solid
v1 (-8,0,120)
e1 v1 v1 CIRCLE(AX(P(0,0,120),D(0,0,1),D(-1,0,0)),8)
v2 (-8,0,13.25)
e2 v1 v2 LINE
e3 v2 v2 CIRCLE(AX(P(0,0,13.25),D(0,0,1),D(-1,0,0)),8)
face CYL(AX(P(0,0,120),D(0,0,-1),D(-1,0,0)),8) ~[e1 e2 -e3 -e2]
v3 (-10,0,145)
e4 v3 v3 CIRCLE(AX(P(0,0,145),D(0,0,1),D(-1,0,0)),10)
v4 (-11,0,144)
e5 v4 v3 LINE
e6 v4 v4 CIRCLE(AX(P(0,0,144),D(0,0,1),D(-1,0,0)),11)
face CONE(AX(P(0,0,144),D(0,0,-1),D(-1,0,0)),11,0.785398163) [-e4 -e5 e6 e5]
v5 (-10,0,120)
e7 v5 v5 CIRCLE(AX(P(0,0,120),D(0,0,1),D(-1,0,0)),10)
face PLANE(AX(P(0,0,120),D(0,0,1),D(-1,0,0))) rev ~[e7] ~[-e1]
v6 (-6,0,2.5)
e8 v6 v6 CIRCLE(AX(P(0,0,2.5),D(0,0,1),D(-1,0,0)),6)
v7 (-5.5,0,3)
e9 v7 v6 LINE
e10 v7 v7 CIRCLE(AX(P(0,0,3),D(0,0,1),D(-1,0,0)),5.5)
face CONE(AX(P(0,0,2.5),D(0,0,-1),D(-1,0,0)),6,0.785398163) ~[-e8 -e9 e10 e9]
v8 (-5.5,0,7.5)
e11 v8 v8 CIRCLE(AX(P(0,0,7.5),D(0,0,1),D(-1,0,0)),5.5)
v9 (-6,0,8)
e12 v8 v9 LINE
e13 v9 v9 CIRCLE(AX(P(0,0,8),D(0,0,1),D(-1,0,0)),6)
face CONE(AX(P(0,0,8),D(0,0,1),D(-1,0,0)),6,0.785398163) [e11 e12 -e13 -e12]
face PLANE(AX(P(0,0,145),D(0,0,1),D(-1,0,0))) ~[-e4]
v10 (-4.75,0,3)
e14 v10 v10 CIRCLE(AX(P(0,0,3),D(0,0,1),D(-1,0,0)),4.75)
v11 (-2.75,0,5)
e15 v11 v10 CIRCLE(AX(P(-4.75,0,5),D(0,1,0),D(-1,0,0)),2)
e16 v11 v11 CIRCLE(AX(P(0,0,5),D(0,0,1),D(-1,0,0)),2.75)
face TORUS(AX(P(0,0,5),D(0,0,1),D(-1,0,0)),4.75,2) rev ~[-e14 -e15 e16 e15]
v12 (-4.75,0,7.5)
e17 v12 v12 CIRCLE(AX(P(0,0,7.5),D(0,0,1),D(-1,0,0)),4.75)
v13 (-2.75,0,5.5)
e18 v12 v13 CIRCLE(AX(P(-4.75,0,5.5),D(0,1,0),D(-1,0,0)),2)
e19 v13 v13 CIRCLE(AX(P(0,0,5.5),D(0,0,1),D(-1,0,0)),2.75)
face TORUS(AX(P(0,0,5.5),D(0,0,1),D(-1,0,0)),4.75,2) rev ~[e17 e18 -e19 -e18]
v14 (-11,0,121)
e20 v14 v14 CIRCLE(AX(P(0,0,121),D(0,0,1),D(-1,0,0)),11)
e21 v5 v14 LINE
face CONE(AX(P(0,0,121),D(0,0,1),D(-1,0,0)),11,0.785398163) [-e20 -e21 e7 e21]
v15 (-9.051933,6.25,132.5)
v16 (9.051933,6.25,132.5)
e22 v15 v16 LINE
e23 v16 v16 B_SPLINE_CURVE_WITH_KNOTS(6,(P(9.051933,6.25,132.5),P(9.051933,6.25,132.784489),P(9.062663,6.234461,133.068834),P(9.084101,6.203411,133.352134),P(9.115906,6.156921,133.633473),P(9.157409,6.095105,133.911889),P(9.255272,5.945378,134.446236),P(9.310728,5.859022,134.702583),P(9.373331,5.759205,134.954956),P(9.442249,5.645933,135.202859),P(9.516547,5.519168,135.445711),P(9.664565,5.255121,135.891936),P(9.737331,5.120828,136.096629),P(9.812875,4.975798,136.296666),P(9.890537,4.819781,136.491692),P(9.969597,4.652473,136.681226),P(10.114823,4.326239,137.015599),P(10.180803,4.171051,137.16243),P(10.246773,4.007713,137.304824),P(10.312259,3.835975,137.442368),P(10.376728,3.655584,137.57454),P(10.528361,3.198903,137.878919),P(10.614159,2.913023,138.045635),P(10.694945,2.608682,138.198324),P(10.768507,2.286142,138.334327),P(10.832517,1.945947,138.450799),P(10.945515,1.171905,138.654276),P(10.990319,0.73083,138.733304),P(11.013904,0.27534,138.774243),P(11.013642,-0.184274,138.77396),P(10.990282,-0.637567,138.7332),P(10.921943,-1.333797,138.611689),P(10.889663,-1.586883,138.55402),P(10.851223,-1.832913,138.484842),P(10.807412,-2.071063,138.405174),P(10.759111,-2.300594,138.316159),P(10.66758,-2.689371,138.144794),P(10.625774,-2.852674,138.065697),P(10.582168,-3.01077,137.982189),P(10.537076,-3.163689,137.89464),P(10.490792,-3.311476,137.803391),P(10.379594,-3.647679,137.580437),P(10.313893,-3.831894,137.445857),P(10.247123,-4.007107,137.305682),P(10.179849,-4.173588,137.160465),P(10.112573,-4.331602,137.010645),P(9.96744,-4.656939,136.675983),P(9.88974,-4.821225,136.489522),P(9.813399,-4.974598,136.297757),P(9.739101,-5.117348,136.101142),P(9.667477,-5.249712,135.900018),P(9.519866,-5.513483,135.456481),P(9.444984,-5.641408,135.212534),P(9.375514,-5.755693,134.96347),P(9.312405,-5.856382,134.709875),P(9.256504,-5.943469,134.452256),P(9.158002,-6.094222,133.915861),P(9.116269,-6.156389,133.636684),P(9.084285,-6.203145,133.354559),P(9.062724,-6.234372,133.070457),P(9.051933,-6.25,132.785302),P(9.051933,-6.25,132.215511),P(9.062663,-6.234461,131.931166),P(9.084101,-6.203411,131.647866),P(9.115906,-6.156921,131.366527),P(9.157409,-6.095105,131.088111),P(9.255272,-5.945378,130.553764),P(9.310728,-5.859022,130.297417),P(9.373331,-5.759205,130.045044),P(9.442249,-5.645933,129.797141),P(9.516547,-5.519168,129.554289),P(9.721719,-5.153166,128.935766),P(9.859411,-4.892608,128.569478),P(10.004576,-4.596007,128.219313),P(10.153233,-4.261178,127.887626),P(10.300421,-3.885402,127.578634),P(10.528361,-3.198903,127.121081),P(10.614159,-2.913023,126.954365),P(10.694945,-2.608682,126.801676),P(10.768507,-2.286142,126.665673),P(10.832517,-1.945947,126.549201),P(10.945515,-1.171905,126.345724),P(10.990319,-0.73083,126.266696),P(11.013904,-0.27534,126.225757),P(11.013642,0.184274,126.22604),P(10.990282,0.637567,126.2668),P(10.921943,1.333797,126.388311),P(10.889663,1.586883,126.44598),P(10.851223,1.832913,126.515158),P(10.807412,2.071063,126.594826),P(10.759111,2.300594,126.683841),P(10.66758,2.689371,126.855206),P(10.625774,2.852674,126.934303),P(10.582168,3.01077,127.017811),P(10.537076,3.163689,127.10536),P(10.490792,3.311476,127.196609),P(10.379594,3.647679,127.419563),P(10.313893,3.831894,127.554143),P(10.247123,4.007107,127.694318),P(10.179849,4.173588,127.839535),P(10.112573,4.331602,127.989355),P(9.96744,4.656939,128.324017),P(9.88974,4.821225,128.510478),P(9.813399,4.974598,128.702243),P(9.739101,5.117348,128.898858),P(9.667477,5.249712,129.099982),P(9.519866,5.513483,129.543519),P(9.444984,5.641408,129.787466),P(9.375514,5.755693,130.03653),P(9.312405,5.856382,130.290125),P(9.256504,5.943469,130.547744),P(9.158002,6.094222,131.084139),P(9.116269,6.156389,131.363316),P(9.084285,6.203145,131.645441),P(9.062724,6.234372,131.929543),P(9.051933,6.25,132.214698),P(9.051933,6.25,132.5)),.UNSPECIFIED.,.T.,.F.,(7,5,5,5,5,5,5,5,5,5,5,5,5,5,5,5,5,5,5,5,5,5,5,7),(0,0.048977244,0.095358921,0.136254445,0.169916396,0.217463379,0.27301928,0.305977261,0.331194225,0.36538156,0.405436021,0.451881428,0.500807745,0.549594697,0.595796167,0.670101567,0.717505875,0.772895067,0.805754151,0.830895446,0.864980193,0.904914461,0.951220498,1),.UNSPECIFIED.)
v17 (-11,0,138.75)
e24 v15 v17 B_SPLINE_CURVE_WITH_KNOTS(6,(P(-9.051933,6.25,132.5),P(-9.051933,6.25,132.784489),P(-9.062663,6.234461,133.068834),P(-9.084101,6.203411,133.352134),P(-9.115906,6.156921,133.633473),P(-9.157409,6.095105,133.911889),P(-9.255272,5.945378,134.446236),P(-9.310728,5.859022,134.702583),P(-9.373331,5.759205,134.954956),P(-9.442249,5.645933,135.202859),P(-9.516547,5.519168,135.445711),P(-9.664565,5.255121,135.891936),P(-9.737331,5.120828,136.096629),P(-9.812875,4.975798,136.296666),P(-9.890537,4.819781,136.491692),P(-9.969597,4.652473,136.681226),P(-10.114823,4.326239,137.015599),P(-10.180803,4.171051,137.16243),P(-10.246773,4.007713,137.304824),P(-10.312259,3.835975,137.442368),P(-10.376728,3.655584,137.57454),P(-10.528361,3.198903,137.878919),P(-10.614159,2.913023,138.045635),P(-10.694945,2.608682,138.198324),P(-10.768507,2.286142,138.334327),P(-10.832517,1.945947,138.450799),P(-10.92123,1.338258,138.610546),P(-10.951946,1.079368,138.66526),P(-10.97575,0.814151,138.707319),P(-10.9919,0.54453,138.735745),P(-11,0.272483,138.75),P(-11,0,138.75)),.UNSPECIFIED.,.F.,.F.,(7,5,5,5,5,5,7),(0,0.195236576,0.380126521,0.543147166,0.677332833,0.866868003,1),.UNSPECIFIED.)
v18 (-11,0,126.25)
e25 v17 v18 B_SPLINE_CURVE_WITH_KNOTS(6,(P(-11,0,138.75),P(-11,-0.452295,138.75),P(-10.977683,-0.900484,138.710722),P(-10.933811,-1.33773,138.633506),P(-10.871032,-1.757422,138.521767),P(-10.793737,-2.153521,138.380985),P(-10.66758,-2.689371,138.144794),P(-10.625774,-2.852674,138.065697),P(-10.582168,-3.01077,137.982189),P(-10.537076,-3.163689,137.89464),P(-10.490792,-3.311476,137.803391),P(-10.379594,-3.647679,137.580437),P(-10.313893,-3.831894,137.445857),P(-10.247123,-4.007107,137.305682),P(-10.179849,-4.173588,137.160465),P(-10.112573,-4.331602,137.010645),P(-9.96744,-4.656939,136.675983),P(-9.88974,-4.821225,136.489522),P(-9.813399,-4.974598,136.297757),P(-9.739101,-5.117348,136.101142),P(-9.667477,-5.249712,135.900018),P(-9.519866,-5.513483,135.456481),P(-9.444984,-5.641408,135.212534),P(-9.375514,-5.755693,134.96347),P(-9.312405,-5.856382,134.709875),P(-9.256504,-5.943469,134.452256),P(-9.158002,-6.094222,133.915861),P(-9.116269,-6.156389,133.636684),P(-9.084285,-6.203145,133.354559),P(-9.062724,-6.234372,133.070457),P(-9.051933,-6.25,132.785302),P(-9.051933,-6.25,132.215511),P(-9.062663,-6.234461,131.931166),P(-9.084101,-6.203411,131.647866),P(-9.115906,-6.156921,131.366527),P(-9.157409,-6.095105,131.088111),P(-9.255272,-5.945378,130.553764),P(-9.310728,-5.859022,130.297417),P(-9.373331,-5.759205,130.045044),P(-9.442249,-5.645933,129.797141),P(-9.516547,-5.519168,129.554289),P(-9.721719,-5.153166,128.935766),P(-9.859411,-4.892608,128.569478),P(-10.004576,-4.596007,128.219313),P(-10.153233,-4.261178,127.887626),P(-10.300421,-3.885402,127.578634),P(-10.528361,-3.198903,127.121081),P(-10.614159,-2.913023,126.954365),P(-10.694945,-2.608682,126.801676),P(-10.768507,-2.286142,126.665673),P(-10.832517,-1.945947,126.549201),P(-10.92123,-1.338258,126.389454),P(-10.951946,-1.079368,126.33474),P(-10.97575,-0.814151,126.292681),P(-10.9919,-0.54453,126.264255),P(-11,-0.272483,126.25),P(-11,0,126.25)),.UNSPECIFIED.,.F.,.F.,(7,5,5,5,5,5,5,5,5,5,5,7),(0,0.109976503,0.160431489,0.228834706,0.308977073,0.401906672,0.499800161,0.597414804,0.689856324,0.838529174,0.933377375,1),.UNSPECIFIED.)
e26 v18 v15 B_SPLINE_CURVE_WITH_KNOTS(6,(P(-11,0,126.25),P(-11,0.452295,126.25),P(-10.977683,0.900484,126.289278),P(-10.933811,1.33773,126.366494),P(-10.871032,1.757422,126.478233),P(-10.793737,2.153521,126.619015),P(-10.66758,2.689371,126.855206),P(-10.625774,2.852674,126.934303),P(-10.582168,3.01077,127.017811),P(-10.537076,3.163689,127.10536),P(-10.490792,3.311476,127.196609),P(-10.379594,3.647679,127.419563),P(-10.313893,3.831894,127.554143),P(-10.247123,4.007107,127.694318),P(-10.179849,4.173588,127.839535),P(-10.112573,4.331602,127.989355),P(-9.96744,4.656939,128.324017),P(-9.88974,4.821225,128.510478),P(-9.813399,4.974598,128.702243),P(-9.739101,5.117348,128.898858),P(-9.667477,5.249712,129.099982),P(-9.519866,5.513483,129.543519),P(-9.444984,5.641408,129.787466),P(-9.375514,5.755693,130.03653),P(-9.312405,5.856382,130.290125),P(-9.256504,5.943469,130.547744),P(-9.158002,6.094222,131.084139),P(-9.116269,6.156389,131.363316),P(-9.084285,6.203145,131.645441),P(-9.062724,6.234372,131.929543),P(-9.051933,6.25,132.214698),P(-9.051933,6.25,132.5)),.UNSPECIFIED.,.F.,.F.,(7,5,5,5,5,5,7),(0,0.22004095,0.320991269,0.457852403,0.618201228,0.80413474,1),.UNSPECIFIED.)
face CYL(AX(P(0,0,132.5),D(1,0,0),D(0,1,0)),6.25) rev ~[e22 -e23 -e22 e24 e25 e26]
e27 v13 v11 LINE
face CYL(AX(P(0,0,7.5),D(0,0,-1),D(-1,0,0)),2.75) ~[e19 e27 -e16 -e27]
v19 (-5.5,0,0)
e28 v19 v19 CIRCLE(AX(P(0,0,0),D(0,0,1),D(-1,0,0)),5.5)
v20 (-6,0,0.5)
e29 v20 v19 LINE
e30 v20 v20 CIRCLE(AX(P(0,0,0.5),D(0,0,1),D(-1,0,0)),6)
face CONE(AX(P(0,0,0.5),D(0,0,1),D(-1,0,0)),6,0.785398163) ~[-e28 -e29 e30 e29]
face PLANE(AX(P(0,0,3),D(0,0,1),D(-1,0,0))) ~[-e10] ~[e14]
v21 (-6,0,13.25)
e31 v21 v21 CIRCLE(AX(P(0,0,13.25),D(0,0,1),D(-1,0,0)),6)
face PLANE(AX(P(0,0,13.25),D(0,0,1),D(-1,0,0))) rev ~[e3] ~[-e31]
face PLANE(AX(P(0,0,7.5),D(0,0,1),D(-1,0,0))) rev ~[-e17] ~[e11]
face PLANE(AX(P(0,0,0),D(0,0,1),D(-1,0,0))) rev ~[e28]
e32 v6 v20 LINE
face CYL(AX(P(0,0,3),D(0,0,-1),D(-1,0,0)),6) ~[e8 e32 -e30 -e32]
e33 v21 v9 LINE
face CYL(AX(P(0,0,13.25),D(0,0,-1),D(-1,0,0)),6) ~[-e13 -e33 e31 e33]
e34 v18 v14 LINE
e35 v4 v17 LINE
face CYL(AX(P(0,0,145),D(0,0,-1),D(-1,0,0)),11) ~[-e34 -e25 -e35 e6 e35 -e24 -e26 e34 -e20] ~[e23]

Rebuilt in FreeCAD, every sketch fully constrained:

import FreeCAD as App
import Part
import Sketcher
Q = App.Units.Quantity


def edges_at(feature, points):
    """Names of the edges that pass closest to the given points."""
    edges = feature.Shape.Edges
    near = lambda p: min(range(len(edges)), key=lambda i: edges[i].distToShape(Part.Vertex(*p))[0])
    return sorted({f"Edge{near(p) + 1}" for p in points})

doc = App.newDocument("Part")
body = doc.addObject("PartDesign::Body", "Body")

# Sketch on XZ plane
sketch1 = doc.addObject("Sketcher::SketchObject", "Sketch")
body.addObject(sketch1)
sketch1.AttachmentSupport = (doc.XZ_Plane, [""])
sketch1.MapMode = "FlatFace"
sketch1.addGeometry(Part.LineSegment(App.Vector(-6, 0, 0), App.Vector(0, 0, 0)), False)
sketch1.addGeometry(Part.LineSegment(App.Vector(0, 0, 0), App.Vector(0, 145, 0)), False)
sketch1.addGeometry(Part.LineSegment(App.Vector(0, 145, 0), App.Vector(-11, 145, 0)), False)
sketch1.addGeometry(Part.LineSegment(App.Vector(-11, 145, 0), App.Vector(-11, 120, 0)), False)
sketch1.addGeometry(Part.LineSegment(App.Vector(-11, 120, 0), App.Vector(-8, 120, 0)), False)
sketch1.addGeometry(Part.LineSegment(App.Vector(-8, 120, 0), App.Vector(-8, 13.2, 0)), False)
sketch1.addGeometry(Part.LineSegment(App.Vector(-8, 13.2, 0), App.Vector(-6, 13.2, 0)), False)
sketch1.addGeometry(Part.LineSegment(App.Vector(-6, 13.2, 0), App.Vector(-6, 7.5, 0)), False)
sketch1.addGeometry(Part.LineSegment(App.Vector(-6, 7.5, 0), App.Vector(-2.8, 7.5, 0)), False)
sketch1.addGeometry(Part.LineSegment(App.Vector(-2.8, 7.5, 0), App.Vector(-2.8, 3, 0)), False)
sketch1.addGeometry(Part.LineSegment(App.Vector(-2.8, 3, 0), App.Vector(-6, 3, 0)), False)
sketch1.addGeometry(Part.LineSegment(App.Vector(-6, 3, 0), App.Vector(-6, 0, 0)), False)
sketch1.addConstraint(Sketcher.Constraint("Coincident", 0, 2, 1, 1))
sketch1.addConstraint(Sketcher.Constraint("Coincident", 1, 2, 2, 1))
sketch1.addConstraint(Sketcher.Constraint("Coincident", 2, 2, 3, 1))
sketch1.addConstraint(Sketcher.Constraint("Coincident", 3, 2, 4, 1))
sketch1.addConstraint(Sketcher.Constraint("Coincident", 4, 2, 5, 1))
sketch1.addConstraint(Sketcher.Constraint("Coincident", 5, 2, 6, 1))
sketch1.addConstraint(Sketcher.Constraint("Coincident", 6, 2, 7, 1))
sketch1.addConstraint(Sketcher.Constraint("Coincident", 7, 2, 8, 1))
sketch1.addConstraint(Sketcher.Constraint("Coincident", 8, 2, 9, 1))
sketch1.addConstraint(Sketcher.Constraint("Coincident", 9, 2, 10, 1))
sketch1.addConstraint(Sketcher.Constraint("Coincident", 10, 2, 11, 1))
sketch1.addConstraint(Sketcher.Constraint("Coincident", 11, 2, 0, 1))
sketch1.addConstraint(Sketcher.Constraint("Horizontal", 0))
sketch1.addConstraint(Sketcher.Constraint("Vertical", 1))
sketch1.addConstraint(Sketcher.Constraint("Horizontal", 2))
sketch1.addConstraint(Sketcher.Constraint("Vertical", 3))
sketch1.addConstraint(Sketcher.Constraint("Horizontal", 4))
sketch1.addConstraint(Sketcher.Constraint("Vertical", 5))
sketch1.addConstraint(Sketcher.Constraint("Horizontal", 6))
sketch1.addConstraint(Sketcher.Constraint("Vertical", 7))
sketch1.addConstraint(Sketcher.Constraint("Horizontal", 8))
sketch1.addConstraint(Sketcher.Constraint("Vertical", 9))
sketch1.addConstraint(Sketcher.Constraint("Horizontal", 10))
sketch1.addConstraint(Sketcher.Constraint("Vertical", 11))
sketch1.addConstraint(Sketcher.Constraint("Coincident", 0, 2, -1, 1))
sketch1.addConstraint(Sketcher.Constraint("Vertical", 7, 2, 10, 2))
sketch1.addConstraint(Sketcher.Constraint("Equal", 4, 11))
sketch1.addConstraint(Sketcher.Constraint("DistanceX", 0, 1, 0, 2, Q("6 mm")))
sketch1.addConstraint(Sketcher.Constraint("DistanceX", 2, 2, 2, 1, Q("11 mm")))
sketch1.addConstraint(Sketcher.Constraint("DistanceX", 4, 1, 4, 2, Q("3 mm")))
sketch1.addConstraint(Sketcher.Constraint("DistanceY", 1, 1, 1, 2, Q("145 mm")))
sketch1.addConstraint(Sketcher.Constraint("DistanceY", 3, 2, 3, 1, Q("25 mm")))
sketch1.addConstraint(Sketcher.Constraint("DistanceY", 9, 2, 9, 1, Q("4.5 mm")))
sketch1.addConstraint(Sketcher.Constraint("DistanceX", 8, 1, 8, 2, Q("3.25 mm")))
sketch1.addConstraint(Sketcher.Constraint("DistanceY", 5, 2, 5, 1, Q("106.75 mm")))
revolution = doc.addObject("PartDesign::Revolution", "Revolution")
body.addObject(revolution)
revolution.Profile = sketch1
revolution.ReferenceAxis = (sketch1, ["V_Axis"])
revolution.Angle = 360
doc.recompute()

fillet = doc.addObject("PartDesign::Fillet", "Fillet")
body.addObject(fillet)
fillet.Base = (revolution, edges_at(revolution, [(2.75, 0, 7.5), (2.75, 0, 3), (-2.75, 0, 5.25)]))
fillet.Radius = 2
doc.recompute()

chamfer = doc.addObject("PartDesign::Chamfer", "Chamfer")
body.addObject(chamfer)
chamfer.Base = (fillet, edges_at(fillet, [(6, 0, 7.5), (6, 0, 3), (6, 0, 0)]))
chamfer.Size = 0.5

# Sketch on YZ plane
sketch2 = doc.addObject("Sketcher::SketchObject", "Sketch001")
body.addObject(sketch2)
sketch2.AttachmentSupport = (doc.YZ_Plane, [""])
sketch2.MapMode = "FlatFace"
sketch2.addGeometry(Part.Circle(App.Vector(0, 132, 0), App.Vector(0, 0, 1), 6), False)
sketch2.addConstraint(Sketcher.Constraint("PointOnObject", 0, 3, -2))
sketch2.addConstraint(Sketcher.Constraint("Diameter", 0, Q("12.5 mm")))
sketch2.addConstraint(Sketcher.Constraint("DistanceY", -1, 1, 0, 3, Q("132.5 mm")))
pocket1 = doc.addObject("PartDesign::Pocket", "Pocket")
body.addObject(pocket1)
pocket1.Profile = sketch2
pocket1.Length = 40.2
pocket1.Midplane = True
doc.recompute()

chamfer2 = doc.addObject("PartDesign::Chamfer", "Chamfer001")
body.addObject(chamfer2)
chamfer2.Base = (pocket1, edges_at(pocket1, [(11, 0, 145), (11, 0, 120)]))
chamfer2.Size = 1

doc.recompute()
